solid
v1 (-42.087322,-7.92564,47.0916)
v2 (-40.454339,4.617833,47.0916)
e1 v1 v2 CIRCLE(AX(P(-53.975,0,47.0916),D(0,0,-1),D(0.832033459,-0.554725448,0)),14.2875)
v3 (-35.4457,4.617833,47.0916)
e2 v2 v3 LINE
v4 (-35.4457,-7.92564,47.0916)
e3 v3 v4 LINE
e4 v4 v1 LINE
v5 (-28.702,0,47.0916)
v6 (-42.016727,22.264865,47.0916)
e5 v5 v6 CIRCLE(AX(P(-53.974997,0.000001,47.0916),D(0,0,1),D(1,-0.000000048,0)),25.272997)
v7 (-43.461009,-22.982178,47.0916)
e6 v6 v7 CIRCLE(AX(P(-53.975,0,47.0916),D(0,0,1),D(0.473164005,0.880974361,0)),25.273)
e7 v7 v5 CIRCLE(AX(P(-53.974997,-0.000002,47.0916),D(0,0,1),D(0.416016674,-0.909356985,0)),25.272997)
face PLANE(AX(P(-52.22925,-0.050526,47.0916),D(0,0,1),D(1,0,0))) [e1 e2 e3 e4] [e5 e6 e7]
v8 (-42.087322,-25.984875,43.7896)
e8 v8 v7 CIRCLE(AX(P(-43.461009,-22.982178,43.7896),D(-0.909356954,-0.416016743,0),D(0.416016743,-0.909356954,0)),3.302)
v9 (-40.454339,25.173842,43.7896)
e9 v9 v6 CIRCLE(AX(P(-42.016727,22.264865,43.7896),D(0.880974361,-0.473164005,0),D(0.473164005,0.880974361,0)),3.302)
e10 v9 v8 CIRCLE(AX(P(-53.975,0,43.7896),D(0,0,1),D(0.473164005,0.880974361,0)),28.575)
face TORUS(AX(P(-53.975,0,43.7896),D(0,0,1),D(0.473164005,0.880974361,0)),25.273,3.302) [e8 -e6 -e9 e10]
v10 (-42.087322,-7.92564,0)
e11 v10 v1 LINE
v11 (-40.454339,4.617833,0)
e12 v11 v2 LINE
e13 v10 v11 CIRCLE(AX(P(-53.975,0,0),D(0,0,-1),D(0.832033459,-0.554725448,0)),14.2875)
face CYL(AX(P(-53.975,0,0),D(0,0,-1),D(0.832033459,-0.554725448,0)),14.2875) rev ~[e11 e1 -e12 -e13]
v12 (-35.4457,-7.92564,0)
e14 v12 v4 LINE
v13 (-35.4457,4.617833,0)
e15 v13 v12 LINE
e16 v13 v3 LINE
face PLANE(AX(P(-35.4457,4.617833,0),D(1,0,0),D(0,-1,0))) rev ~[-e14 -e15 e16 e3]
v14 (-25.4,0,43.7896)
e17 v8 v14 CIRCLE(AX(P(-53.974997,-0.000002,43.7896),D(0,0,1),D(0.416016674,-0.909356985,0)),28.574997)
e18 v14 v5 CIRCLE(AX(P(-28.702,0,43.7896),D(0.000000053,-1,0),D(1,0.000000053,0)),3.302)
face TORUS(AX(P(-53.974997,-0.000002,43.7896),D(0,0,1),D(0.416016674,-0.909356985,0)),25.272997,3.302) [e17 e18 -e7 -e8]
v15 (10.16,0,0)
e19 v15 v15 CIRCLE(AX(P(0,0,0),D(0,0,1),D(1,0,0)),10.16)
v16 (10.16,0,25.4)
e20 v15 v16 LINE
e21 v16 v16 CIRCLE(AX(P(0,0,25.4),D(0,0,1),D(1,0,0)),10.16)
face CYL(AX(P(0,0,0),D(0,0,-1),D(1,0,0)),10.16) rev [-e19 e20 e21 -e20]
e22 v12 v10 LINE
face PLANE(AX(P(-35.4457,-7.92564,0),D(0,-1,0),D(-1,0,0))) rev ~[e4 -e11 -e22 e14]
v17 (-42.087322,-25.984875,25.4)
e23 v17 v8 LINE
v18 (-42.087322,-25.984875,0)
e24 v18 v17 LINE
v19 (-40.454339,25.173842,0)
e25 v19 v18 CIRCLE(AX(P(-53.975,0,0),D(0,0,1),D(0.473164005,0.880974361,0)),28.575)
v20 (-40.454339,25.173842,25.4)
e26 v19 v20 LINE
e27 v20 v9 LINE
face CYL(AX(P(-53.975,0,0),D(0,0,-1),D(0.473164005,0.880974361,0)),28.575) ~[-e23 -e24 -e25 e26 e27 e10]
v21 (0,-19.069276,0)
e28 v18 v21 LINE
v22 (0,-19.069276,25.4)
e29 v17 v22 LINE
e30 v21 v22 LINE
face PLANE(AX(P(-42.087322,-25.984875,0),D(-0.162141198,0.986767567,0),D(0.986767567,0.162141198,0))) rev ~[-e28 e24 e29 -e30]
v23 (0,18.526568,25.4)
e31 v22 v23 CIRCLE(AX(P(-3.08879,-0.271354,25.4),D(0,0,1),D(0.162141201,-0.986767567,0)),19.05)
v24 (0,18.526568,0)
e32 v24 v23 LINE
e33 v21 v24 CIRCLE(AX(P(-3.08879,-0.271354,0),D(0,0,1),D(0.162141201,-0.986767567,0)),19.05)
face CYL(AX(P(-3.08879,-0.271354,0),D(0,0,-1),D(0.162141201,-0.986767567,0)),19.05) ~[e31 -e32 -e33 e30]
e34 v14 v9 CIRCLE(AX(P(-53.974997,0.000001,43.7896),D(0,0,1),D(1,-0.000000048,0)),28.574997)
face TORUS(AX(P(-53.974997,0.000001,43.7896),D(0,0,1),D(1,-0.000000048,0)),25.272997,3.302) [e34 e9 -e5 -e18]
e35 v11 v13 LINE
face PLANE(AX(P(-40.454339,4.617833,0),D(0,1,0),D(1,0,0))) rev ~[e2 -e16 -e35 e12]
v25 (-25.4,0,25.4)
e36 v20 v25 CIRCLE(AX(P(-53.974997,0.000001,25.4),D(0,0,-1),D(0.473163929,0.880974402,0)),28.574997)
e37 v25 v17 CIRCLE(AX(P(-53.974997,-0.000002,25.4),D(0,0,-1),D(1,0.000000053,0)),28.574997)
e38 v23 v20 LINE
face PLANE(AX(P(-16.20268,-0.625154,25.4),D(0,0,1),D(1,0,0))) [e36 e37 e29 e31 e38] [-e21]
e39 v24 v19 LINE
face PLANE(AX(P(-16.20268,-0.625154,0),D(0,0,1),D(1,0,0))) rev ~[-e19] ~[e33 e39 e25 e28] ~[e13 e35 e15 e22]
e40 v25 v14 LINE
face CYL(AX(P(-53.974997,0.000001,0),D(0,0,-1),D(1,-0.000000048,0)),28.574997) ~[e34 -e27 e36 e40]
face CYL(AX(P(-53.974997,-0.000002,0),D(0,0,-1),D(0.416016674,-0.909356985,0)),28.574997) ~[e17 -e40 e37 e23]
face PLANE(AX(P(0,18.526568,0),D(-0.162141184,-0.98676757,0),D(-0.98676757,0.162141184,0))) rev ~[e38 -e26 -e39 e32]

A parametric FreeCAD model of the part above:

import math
import FreeCAD as App
import Part
import Sketcher

V = App.Vector
Q = App.Units.Quantity


def edges_at(feature, points):
    """Names of the edges that pass closest to the given points."""
    edges = feature.Shape.Edges
    near = lambda p: min(range(len(edges)), key=lambda i: edges[i].distToShape(Part.Vertex(*p))[0])
    return sorted({f"Edge{near(p) + 1}" for p in points})

doc = App.newDocument("Part")
body = doc.addObject("PartDesign::Body", "Body")

# Sketch on XY plane
sketch1 = body.newObject("Sketcher::SketchObject", "Sketch")
sketch1.AttachmentSupport = (doc.getObject("XY_Plane"), [""])
sketch1.MapMode = "FlatFace"
sketch1.addGeometry(Part.ArcOfCircle(Part.Circle(V(-54, 0, 0), V(0, 0, 1), 29), math.radians(-65), math.radians(0)), False)
sketch1.addGeometry(Part.ArcOfCircle(Part.Circle(V(-54, 0, 0), V(0, 0, 1), 29), math.radians(0), math.radians(62)), False)
sketch1.addGeometry(Part.ArcOfCircle(Part.Circle(V(-54, 0, 0), V(0, 0, 1), 29), math.radians(62), math.radians(295)), False)
sketch1.addGeometry(Part.LineSegment(V(-35, -8, 0), V(-42, -8, 0)), False)
sketch1.addGeometry(Part.ArcOfCircle(Part.Circle(V(-54, 0, 0), V(0, 0, 1), 14), math.radians(19), math.radians(326)), False)
sketch1.addGeometry(Part.LineSegment(V(-40, 5, 0), V(-35, 5, 0)), False)
sketch1.addGeometry(Part.LineSegment(V(-35, 5, 0), V(-35, -8, 0)), False)
sketch1.addConstraint(Sketcher.Constraint("Tangent", 0, 2, 1, 1))
sketch1.addConstraint(Sketcher.Constraint("Tangent", 1, 2, 2, 1))
sketch1.addConstraint(Sketcher.Constraint("Tangent", 2, 2, 0, 1))
sketch1.addConstraint(Sketcher.Constraint("Coincident", 3, 2, 4, 2))
sketch1.addConstraint(Sketcher.Constraint("Coincident", 4, 1, 5, 1))
sketch1.addConstraint(Sketcher.Constraint("Coincident", 5, 2, 6, 1))
sketch1.addConstraint(Sketcher.Constraint("Coincident", 6, 2, 3, 1))
sketch1.addConstraint(Sketcher.Constraint("Horizontal", 3))
sketch1.addConstraint(Sketcher.Constraint("Horizontal", 5))
sketch1.addConstraint(Sketcher.Constraint("Vertical", 6))
sketch1.addConstraint(Sketcher.Constraint("Coincident", 4, 3, 0, 3))
sketch1.addConstraint(Sketcher.Constraint("PointOnObject", 0, 3, -1))
sketch1.addConstraint(Sketcher.Constraint("PointOnObject", 0, 2, -1))
sketch1.addConstraint(Sketcher.Constraint("Vertical", 2, 2, 3, 2))
sketch1.addConstraint(Sketcher.Constraint("Vertical", 1, 2, 4, 1))
sketch1.addConstraint(Sketcher.Constraint("DistanceX", 0, 2, -1, 1, Q("1 in")))
sketch1.addConstraint(Sketcher.Constraint("Radius", 0, Q("1.1249999 in")))
sketch1.addConstraint(Sketcher.Constraint("Radius", 4, Q("0.5625 in")))
sketch1.addConstraint(Sketcher.Constraint("DistanceX", 5, 2, -1, 1, Q("1.3955 in")))
sketch1.addConstraint(Sketcher.Constraint("DistanceX", 3, 2, 3, 1, 6.641622))
sketch1.addConstraint(Sketcher.Constraint("DistanceX", 5, 1, 5, 2, 5.008639))
pad1 = body.newObject("PartDesign::Pad", "Pad")
pad1.Profile = sketch1
pad1.Length = Q("1.854 in")

# Sketch on XY plane
sketch2 = body.newObject("Sketcher::SketchObject", "Sketch001")
sketch2.AttachmentSupport = (doc.getObject("XY_Plane"), [""])
sketch2.MapMode = "FlatFace"
sketch2.addGeometry(Part.ArcOfCircle(Part.Circle(V(-54, 0, 0), V(0, 0, 1), 29), math.radians(0), math.radians(62)), False)
sketch2.addGeometry(Part.ArcOfCircle(Part.Circle(V(-54, 0, 0), V(0, 0, 1), 29), math.radians(-65), math.radians(0)), False)
sketch2.addGeometry(Part.LineSegment(V(-42, -26, 0), V(0, -19, 0)), False)
sketch2.addGeometry(Part.ArcOfCircle(Part.Circle(V(-3, 0, 0), V(0, 0, 1), 19), math.radians(-81), math.radians(81)), False)
sketch2.addGeometry(Part.LineSegment(V(0, 19, 0), V(-40, 25, 0)), False)
sketch2.addGeometry(Part.Circle(V(0, 0, 0), V(0, 0, 1), 10), False)
sketch2.addConstraint(Sketcher.Constraint("Tangent", 0, 1, 1, 2))
sketch2.addConstraint(Sketcher.Constraint("Coincident", 1, 1, 2, 1))
sketch2.addConstraint(Sketcher.Constraint("Tangent", 2, 2, 3, 1))
sketch2.addConstraint(Sketcher.Constraint("Tangent", 3, 2, 4, 1))
sketch2.addConstraint(Sketcher.Constraint("Coincident", 4, 2, 0, 2))
sketch2.addConstraint(Sketcher.Constraint("Coincident", 5, 3, -1, 1))
sketch2.addConstraint(Sketcher.Constraint("Equal", 0, 1))
sketch2.addConstraint(Sketcher.Constraint("PointOnObject", 0, 3, -1))
sketch2.addConstraint(Sketcher.Constraint("PointOnObject", 0, 1, -1))
sketch2.addConstraint(Sketcher.Constraint("PointOnObject", 2, 2, -2))
sketch2.addConstraint(Sketcher.Constraint("PointOnObject", 3, 2, -2))
sketch2.addConstraint(Sketcher.Constraint("Diameter", 5, Q("0.8 in")))
sketch2.addConstraint(Sketcher.Constraint("Radius", 3, Q("0.75 in")))
sketch2.addConstraint(Sketcher.Constraint("DistanceX", 0, 1, -1, 1, Q("1 in")))
sketch2.addConstraint(Sketcher.Constraint("Radius", 0, Q("1.1249999 in")))
sketch2.addConstraint(Sketcher.Constraint("DistanceY", 1, 1, 2, 2, 6.915599))
sketch2.addConstraint(Sketcher.Constraint("DistanceX", 3, 3, -1, 1, 3.08879))
pad2 = body.newObject("PartDesign::Pad", "Pad001")
pad2.Profile = sketch2
pad2.Length = Q("1 in")
doc.recompute()

fillet = body.newObject("PartDesign::Fillet", "Fillet")
fillet.Base = (pad2, edges_at(pad2, [(-82.535, 0.912, 47.092)]))
fillet.Radius = Q("0.13 in")

doc.recompute()
